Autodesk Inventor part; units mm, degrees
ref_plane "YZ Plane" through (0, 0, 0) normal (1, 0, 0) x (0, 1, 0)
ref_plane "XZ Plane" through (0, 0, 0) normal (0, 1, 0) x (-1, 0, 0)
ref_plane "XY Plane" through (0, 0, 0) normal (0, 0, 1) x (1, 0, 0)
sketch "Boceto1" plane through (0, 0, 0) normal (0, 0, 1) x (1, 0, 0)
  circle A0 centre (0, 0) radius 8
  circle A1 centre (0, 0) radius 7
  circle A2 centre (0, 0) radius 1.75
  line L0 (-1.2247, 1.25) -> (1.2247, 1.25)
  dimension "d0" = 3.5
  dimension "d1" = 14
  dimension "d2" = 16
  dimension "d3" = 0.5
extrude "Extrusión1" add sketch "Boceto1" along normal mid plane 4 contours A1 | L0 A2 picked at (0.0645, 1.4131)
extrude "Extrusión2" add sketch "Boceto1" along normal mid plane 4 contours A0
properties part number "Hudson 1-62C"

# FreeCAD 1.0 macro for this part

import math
import FreeCAD as App
import Part
import Sketcher
from FreeCAD import Vector
Q = App.Units.Quantity

doc = App.newDocument("Part")
body = doc.addObject("PartDesign::Body", "Body")

# Sketch on XY plane
sketch1 = body.newObject("Sketcher::SketchObject", "Sketch")
sketch1.AttachmentSupport = (doc.getObject("XY_Plane"), [""])
sketch1.MapMode = "FlatFace"
sketch1.addGeometry([
    Part.Circle(Vector(0, 0, 0), Vector(0, 0, 1), 7),
    Part.ArcOfCircle(Part.Circle(Vector(0, 0, 0), Vector(0, 0, 1), 1.8), math.radians(134), math.radians(406)),
    Part.LineSegment(Vector(1.2, 1.2, 0), Vector(-1.2, 1.2, 0)),
], False)
sketch1.addConstraint([
    Sketcher.Constraint("Coincident", 1, 1, 2, 2),
    Sketcher.Constraint("Coincident", 2, 1, 1, 2),
    Sketcher.Constraint("Horizontal", 2),
    Sketcher.Constraint("Coincident", 0, 3, -1, 1),
    Sketcher.Constraint("Coincident", 1, 3, -1, 1),
    Sketcher.Constraint("Diameter", 0, Q("14 mm")),
    Sketcher.Constraint("Radius", 1, Q("1.75 mm")),
    Sketcher.Constraint("DistanceY", -1, 1, 1, 1, Q("1.25 mm")),
])
pad1 = body.newObject("PartDesign::Pad", "Pad")
pad1.Profile = sketch1
pad1.Length = 4
pad1.Midplane = True

# Sketch on XY plane
sketch2 = body.newObject("Sketcher::SketchObject", "Sketch001")
sketch2.AttachmentSupport = (doc.getObject("XY_Plane"), [""])
sketch2.MapMode = "FlatFace"
sketch2.addGeometry([
    Part.Circle(Vector(0, 0, 0), Vector(0, 0, 1), 8),
    Part.Circle(Vector(0, 0, 0), Vector(0, 0, 1), 7),
], False)
sketch2.addConstraint([
    Sketcher.Constraint("Coincident", 0, 3, -1, 1),
    Sketcher.Constraint("Coincident", 1, 3, -1, 1),
    Sketcher.Constraint("Diameter", 0, Q("16 mm")),
    Sketcher.Constraint("Diameter", 1, Q("14 mm")),
])
pad2 = body.newObject("PartDesign::Pad", "Pad001")
pad2.Profile = sketch2
pad2.Length = 4
pad2.Midplane = True

doc.recompute()
